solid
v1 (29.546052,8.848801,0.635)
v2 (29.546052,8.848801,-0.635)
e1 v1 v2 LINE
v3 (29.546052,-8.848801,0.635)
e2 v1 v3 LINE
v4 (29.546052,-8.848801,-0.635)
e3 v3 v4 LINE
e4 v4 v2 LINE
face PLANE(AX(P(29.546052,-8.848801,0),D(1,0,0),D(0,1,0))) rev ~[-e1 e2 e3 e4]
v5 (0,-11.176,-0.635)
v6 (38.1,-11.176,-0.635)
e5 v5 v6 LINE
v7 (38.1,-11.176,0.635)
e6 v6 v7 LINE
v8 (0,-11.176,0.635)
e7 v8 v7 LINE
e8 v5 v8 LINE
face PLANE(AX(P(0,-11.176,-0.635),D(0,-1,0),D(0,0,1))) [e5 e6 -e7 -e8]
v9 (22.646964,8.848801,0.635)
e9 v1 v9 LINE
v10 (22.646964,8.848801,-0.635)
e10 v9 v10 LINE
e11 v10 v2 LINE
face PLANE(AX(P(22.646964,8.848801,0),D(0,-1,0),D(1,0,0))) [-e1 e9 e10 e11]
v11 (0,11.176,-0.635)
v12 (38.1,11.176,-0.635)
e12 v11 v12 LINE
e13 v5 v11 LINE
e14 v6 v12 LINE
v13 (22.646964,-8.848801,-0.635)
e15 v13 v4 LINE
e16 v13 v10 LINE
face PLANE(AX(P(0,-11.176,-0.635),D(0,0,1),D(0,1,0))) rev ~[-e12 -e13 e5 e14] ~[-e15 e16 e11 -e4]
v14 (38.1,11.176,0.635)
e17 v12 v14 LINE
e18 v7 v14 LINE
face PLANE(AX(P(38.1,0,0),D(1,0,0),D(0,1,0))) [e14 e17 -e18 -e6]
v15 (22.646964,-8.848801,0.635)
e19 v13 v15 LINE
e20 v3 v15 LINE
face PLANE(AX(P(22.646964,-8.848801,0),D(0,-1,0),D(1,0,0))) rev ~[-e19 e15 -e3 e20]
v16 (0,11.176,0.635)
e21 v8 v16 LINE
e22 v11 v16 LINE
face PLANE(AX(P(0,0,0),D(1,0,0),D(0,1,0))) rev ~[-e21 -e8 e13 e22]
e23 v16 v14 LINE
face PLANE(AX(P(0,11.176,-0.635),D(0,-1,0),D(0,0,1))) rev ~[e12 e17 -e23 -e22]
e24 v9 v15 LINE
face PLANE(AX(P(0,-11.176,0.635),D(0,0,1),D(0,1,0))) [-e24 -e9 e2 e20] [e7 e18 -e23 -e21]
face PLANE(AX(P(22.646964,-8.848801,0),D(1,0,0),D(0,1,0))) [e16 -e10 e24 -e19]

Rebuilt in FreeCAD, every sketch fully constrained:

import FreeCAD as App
import Part
import Sketcher

V = App.Vector
Q = App.Units.Quantity

doc = App.newDocument("Part")
body = doc.addObject("PartDesign::Body", "Body")

# Sketch on YZ plane
sketch1 = doc.addObject("Sketcher::SketchObject", "Sketch")
body.addObject(sketch1)
sketch1.AttachmentSupport = (doc.YZ_Plane, [""])
sketch1.MapMode = "FlatFace"
sketch1.addGeometry(Part.LineSegment(V(-11.2, 0.6, 0), V(-11.2, -0.6, 0)), False)
sketch1.addGeometry(Part.LineSegment(V(-11.2, -0.6, 0), V(11.2, -0.6, 0)), False)
sketch1.addGeometry(Part.LineSegment(V(11.2, -0.6, 0), V(11.2, 0.6, 0)), False)
sketch1.addGeometry(Part.LineSegment(V(11.2, 0.6, 0), V(-11.2, 0.6, 0)), False)
sketch1.addConstraint(Sketcher.Constraint("Coincident", 0, 2, 1, 1))
sketch1.addConstraint(Sketcher.Constraint("Coincident", 1, 2, 2, 1))
sketch1.addConstraint(Sketcher.Constraint("Coincident", 2, 2, 3, 1))
sketch1.addConstraint(Sketcher.Constraint("Coincident", 3, 2, 0, 1))
sketch1.addConstraint(Sketcher.Constraint("Vertical", 0))
sketch1.addConstraint(Sketcher.Constraint("Horizontal", 1))
sketch1.addConstraint(Sketcher.Constraint("Vertical", 2))
sketch1.addConstraint(Sketcher.Constraint("Horizontal", 3))
sketch1.addConstraint(Sketcher.Constraint("Symmetric", 0, 2, 2, 2, -1, 1))
sketch1.addConstraint(Sketcher.Constraint("DistanceX", 1, 1, 1, 2, Q("0.88 in")))
sketch1.addConstraint(Sketcher.Constraint("DistanceY", 0, 2, 0, 1, Q("0.05 in")))
pad1 = doc.addObject("PartDesign::Pad", "Pad")
body.addObject(pad1)
pad1.Profile = sketch1
pad1.Length = Q("1.5 in")

# Sketch on XY plane
sketch2 = doc.addObject("Sketcher::SketchObject", "Sketch001")
body.addObject(sketch2)
sketch2.AttachmentSupport = (doc.XY_Plane, [""])
sketch2.MapMode = "FlatFace"
sketch2.addGeometry(Part.LineSegment(V(23, 9, 0), V(23, -9, 0)), False)
sketch2.addGeometry(Part.LineSegment(V(23, -9, 0), V(30, -9, 0)), False)
sketch2.addGeometry(Part.LineSegment(V(30, -9, 0), V(30, 9, 0)), False)
sketch2.addGeometry(Part.LineSegment(V(30, 9, 0), V(23, 9, 0)), False)
sketch2.addConstraint(Sketcher.Constraint("Coincident", 0, 2, 1, 1))
sketch2.addConstraint(Sketcher.Constraint("Coincident", 1, 2, 2, 1))
sketch2.addConstraint(Sketcher.Constraint("Coincident", 2, 2, 3, 1))
sketch2.addConstraint(Sketcher.Constraint("Coincident", 3, 2, 0, 1))
sketch2.addConstraint(Sketcher.Constraint("Vertical", 0))
sketch2.addConstraint(Sketcher.Constraint("Horizontal", 1))
sketch2.addConstraint(Sketcher.Constraint("Vertical", 2))
sketch2.addConstraint(Sketcher.Constraint("Horizontal", 3))
sketch2.addConstraint(Sketcher.Constraint("DistanceX", 1, 1, 1, 2, Q("6.899089 mm")))
sketch2.addConstraint(Sketcher.Constraint("DistanceY", 0, 2, -1, 1, Q("8.848801 mm")))
sketch2.addConstraint(Sketcher.Constraint("DistanceY", -1, 1, 2, 2, Q("8.848801 mm")))
sketch2.addConstraint(Sketcher.Constraint("DistanceX", -1, 1, 0, 2, Q("22.646964 mm")))
pocket1 = doc.addObject("PartDesign::Pocket", "Pocket")
body.addObject(pocket1)
pocket1.Profile = sketch2
pocket1.Type = "ThroughAll"
pocket1.Midplane = True

doc.recompute()
